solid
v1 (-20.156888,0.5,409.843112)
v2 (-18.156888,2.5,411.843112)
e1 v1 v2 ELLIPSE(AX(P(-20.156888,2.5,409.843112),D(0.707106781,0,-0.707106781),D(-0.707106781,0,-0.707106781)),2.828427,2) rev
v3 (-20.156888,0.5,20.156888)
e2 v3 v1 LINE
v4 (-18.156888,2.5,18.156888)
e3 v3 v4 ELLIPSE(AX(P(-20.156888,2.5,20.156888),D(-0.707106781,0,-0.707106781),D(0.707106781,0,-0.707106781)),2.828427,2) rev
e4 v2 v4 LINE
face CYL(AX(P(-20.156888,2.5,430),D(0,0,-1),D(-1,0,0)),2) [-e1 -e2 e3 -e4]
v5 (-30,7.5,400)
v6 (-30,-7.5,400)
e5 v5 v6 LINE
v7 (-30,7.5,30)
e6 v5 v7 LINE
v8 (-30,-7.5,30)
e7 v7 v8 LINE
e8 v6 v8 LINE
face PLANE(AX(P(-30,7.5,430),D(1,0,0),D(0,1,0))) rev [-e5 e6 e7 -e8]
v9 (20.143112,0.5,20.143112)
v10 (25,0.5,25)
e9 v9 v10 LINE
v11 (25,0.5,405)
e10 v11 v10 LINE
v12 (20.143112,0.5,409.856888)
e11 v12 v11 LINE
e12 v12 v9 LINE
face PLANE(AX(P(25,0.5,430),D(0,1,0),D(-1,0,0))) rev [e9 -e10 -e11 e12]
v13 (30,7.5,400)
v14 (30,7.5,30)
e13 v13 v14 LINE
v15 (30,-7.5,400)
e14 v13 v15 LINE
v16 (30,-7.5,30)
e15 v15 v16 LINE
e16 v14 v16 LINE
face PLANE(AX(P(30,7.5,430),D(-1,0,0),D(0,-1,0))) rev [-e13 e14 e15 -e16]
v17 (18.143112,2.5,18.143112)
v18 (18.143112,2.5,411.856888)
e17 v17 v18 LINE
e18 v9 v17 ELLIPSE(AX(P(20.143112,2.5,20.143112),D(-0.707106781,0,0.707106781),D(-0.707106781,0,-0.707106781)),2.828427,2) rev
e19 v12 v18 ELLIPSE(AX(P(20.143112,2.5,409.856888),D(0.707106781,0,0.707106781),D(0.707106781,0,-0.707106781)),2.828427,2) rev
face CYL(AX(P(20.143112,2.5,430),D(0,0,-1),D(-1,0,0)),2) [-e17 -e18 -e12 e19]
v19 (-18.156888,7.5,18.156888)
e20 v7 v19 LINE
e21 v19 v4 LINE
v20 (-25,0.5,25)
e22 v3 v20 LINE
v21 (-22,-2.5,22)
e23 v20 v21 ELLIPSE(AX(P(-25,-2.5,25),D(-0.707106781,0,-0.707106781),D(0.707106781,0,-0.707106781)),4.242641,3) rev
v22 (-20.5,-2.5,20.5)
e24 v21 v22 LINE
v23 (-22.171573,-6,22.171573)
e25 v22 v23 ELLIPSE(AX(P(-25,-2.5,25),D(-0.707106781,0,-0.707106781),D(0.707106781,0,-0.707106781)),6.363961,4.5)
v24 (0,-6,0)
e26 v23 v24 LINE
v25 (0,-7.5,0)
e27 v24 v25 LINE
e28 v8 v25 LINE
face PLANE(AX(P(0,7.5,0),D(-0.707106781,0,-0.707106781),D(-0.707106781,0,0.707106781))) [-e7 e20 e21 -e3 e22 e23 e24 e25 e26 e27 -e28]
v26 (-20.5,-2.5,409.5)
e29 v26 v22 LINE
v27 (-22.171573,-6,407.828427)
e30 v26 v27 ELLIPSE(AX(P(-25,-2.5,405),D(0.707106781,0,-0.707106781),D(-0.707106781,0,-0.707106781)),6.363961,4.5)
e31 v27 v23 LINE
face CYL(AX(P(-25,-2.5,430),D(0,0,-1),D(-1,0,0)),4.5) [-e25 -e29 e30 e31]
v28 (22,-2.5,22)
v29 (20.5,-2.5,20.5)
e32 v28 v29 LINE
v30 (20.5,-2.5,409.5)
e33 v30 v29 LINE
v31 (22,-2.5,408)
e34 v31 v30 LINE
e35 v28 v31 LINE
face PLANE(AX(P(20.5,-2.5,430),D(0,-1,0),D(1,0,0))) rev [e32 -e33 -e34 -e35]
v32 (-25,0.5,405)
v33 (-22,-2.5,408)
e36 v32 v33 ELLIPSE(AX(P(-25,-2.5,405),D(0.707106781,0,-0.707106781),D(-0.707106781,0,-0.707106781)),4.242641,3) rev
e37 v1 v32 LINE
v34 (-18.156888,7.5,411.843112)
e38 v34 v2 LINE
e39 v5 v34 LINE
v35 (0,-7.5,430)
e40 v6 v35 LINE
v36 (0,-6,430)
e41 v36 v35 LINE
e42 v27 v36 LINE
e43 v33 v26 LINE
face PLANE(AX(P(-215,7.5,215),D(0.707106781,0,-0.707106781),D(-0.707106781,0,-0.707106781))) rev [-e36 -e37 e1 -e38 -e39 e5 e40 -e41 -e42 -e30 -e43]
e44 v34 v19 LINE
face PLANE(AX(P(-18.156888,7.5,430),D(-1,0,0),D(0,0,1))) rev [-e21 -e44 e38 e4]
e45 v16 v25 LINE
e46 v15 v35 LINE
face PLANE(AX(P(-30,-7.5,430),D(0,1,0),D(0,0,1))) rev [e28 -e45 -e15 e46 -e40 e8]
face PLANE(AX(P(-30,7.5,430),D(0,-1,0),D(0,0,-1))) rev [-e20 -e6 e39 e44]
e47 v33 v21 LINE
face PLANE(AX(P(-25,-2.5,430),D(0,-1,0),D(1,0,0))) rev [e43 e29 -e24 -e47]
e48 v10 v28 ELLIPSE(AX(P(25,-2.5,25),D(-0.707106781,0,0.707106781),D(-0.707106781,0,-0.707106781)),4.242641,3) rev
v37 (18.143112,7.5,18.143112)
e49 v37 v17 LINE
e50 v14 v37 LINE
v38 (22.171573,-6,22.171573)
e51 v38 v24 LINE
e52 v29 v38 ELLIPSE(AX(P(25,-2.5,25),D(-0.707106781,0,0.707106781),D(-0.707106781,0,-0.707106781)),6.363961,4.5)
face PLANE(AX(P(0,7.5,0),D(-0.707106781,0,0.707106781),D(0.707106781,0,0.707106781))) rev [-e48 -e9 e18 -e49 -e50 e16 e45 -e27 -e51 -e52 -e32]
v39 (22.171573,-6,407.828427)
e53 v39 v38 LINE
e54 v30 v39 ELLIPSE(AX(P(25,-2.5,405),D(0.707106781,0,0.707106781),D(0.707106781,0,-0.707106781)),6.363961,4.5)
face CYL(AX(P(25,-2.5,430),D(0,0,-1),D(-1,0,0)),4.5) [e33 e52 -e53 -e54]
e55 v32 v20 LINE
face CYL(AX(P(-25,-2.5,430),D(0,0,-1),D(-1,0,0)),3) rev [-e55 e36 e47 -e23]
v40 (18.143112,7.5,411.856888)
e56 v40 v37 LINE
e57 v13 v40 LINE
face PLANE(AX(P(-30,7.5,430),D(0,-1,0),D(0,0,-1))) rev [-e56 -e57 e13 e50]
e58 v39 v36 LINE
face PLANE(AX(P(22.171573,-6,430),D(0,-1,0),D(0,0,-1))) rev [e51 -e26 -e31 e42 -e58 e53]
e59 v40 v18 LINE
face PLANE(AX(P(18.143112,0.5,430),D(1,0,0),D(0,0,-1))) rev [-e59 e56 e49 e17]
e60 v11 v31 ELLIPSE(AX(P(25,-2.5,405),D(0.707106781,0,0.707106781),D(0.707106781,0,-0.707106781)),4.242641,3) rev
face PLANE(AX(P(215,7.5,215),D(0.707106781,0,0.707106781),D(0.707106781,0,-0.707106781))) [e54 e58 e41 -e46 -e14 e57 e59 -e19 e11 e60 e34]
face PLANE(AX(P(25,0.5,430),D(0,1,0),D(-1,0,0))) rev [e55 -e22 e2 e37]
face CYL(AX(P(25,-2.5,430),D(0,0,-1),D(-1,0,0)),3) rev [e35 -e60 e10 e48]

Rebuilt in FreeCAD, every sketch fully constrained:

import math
import FreeCAD as App
import Part
import Sketcher

V = App.Vector
Q = App.Units.Quantity


def edges_at(feature, points):
    """Names of the edges that pass closest to the given points."""
    edges = feature.Shape.Edges
    near = lambda p: min(range(len(edges)), key=lambda i: edges[i].distToShape(Part.Vertex(*p))[0])
    return sorted({f"Edge{near(p) + 1}" for p in points})

doc = App.newDocument("Part")
body = doc.addObject("PartDesign::Body", "Body")

sketch1 = body.newObject("Sketcher::SketchObject", "Sketch")
sketch1.AttachmentSupport = (doc.getObject("XY_Plane"), [""])
sketch1.MapMode = "FlatFace"
sketch1.addGeometry(Part.LineSegment(V(-30, 8, 0), V(-30, -8, 0)), False)
sketch1.addGeometry(Part.LineSegment(V(-30, -8, 0), V(30, -8, 0)), False)
sketch1.addGeometry(Part.LineSegment(V(30, -8, 0), V(30, 8, 0)), False)
sketch1.addGeometry(Part.LineSegment(V(30, 8, 0), V(-30, 8, 0)), False)
sketch1.addConstraint(Sketcher.Constraint("Coincident", 0, 2, 1, 1))
sketch1.addConstraint(Sketcher.Constraint("Coincident", 1, 2, 2, 1))
sketch1.addConstraint(Sketcher.Constraint("Coincident", 2, 2, 3, 1))
sketch1.addConstraint(Sketcher.Constraint("Coincident", 3, 2, 0, 1))
sketch1.addConstraint(Sketcher.Constraint("Vertical", 0))
sketch1.addConstraint(Sketcher.Constraint("Horizontal", 1))
sketch1.addConstraint(Sketcher.Constraint("Vertical", 2))
sketch1.addConstraint(Sketcher.Constraint("Horizontal", 3))
sketch1.addConstraint(Sketcher.Constraint("Symmetric", 0, 2, 2, 2, -1, 1))
sketch1.addConstraint(Sketcher.Constraint("DistanceX", 1, 1, 1, 2, Q("60 mm")))
sketch1.addConstraint(Sketcher.Constraint("DistanceY", 0, 2, 0, 1, Q("15 mm")))
pad1 = body.newObject("PartDesign::Pad", "Pad")
pad1.Profile = sketch1
pad1.Length = 430

sketch2 = body.newObject("Sketcher::SketchObject", "Sketch001")
sketch2.AttachmentSupport = (doc.getObject("XY_Plane"), [""])
sketch2.MapMode = "FlatFace"
sketch2.addGeometry(Part.Circle(V(25, -2.5, 0), V(0, 0, 1), 3), False)
sketch2.addGeometry(Part.Circle(V(-25, -2.5, 0), V(0, 0, 1), 3), False)
sketch2.addConstraint(Sketcher.Constraint("Equal", 0, 1))
sketch2.addConstraint(Sketcher.Constraint("Symmetric", 0, 3, 1, 3, -2))
sketch2.addConstraint(Sketcher.Constraint("Diameter", 0, Q("6 mm")))
sketch2.addConstraint(Sketcher.Constraint("DistanceX", -1, 1, 0, 3, Q("25 mm")))
sketch2.addConstraint(Sketcher.Constraint("DistanceY", 0, 3, -1, 1, Q("2.5 mm")))
pocket1 = body.newObject("PartDesign::Pocket", "Pocket")
pocket1.Profile = sketch2
pocket1.Type = "ThroughAll"
pocket1.Reversed = True

sketch3 = body.newObject("Sketcher::SketchObject", "Sketch002")
sketch3.AttachmentSupport = (doc.getObject("XY_Plane"), [""])
sketch3.MapMode = "FlatFace"
sketch3.addGeometry(Part.LineSegment(V(22.2, -6, 0), V(-22.2, -6, 0)), False)
sketch3.addGeometry(Part.ArcOfCircle(Part.Circle(V(-25, -2.5, 0), V(0, 0, 1), 4.5), math.radians(-51), math.radians(0)), False)
sketch3.addGeometry(Part.LineSegment(V(-20.5, -2.5, 0), V(-25, -2.5, 0)), False)
sketch3.addGeometry(Part.LineSegment(V(-25, -2.5, 0), V(-25, 0.5, 0)), False)
sketch3.addGeometry(Part.LineSegment(V(-25, 0.5, 0), V(25, 0.5, 0)), False)
sketch3.addGeometry(Part.LineSegment(V(25, 0.5, 0), V(25, -2.5, 0)), False)
sketch3.addGeometry(Part.LineSegment(V(25, -2.5, 0), V(20.5, -2.5, 0)), False)
sketch3.addGeometry(Part.ArcOfCircle(Part.Circle(V(25, -2.5, 0), V(0, 0, 1), 4.5), math.radians(180), math.radians(231)), False)
sketch3.addConstraint(Sketcher.Constraint("Coincident", 0, 2, 1, 1))
sketch3.addConstraint(Sketcher.Constraint("Coincident", 1, 2, 2, 1))
sketch3.addConstraint(Sketcher.Constraint("Coincident", 2, 2, 3, 1))
sketch3.addConstraint(Sketcher.Constraint("Coincident", 3, 2, 4, 1))
sketch3.addConstraint(Sketcher.Constraint("Coincident", 4, 2, 5, 1))
sketch3.addConstraint(Sketcher.Constraint("Coincident", 5, 2, 6, 1))
sketch3.addConstraint(Sketcher.Constraint("Coincident", 6, 2, 7, 1))
sketch3.addConstraint(Sketcher.Constraint("Coincident", 7, 2, 0, 1))
sketch3.addConstraint(Sketcher.Constraint("Horizontal", 0))
sketch3.addConstraint(Sketcher.Constraint("Horizontal", 2))
sketch3.addConstraint(Sketcher.Constraint("Vertical", 3))
sketch3.addConstraint(Sketcher.Constraint("Horizontal", 4))
sketch3.addConstraint(Sketcher.Constraint("Vertical", 5))
sketch3.addConstraint(Sketcher.Constraint("Horizontal", 6))
sketch3.addConstraint(Sketcher.Constraint("Coincident", 2, 2, 1, 3))
sketch3.addConstraint(Sketcher.Constraint("Coincident", 5, 2, 7, 3))
sketch3.addConstraint(Sketcher.Constraint("Equal", 1, 7))
sketch3.addConstraint(Sketcher.Constraint("Symmetric", 1, 3, 7, 3, -2))
sketch3.addConstraint(Sketcher.Constraint("Radius", 1, Q("4.5 mm")))
sketch3.addConstraint(Sketcher.Constraint("DistanceX", 4, 1, 4, 2, Q("50 mm")))
sketch3.addConstraint(Sketcher.Constraint("DistanceY", 3, 1, 3, 2, Q("3 mm")))
sketch3.addConstraint(Sketcher.Constraint("DistanceY", 0, 2, -1, 1, Q("6 mm")))
sketch3.addConstraint(Sketcher.Constraint("DistanceY", 1, 3, -1, 1, Q("2.5 mm")))
pocket2 = body.newObject("PartDesign::Pocket", "Pocket001")
pocket2.Profile = sketch3
pocket2.Type = "ThroughAll"
pocket2.Reversed = True

sketch4 = body.newObject("Sketcher::SketchObject", "Sketch003")
sketch4.AttachmentSupport = (doc.getObject("XY_Plane"), [""])
sketch4.MapMode = "FlatFace"
sketch4.addGeometry(Part.LineSegment(V(18, 8, 0), V(18, 0, 0)), False)
sketch4.addGeometry(Part.LineSegment(V(18, 0, 0), V(-18, 0, 0)), False)
sketch4.addGeometry(Part.LineSegment(V(-18, 0, 0), V(-18, 8, 0)), False)
sketch4.addGeometry(Part.LineSegment(V(-18, 8, 0), V(18, 8, 0)), False)
sketch4.addConstraint(Sketcher.Constraint("Coincident", 0, 2, 1, 1))
sketch4.addConstraint(Sketcher.Constraint("Coincident", 1, 2, 2, 1))
sketch4.addConstraint(Sketcher.Constraint("Coincident", 2, 2, 3, 1))
sketch4.addConstraint(Sketcher.Constraint("Coincident", 3, 2, 0, 1))
sketch4.addConstraint(Sketcher.Constraint("Vertical", 0))
sketch4.addConstraint(Sketcher.Constraint("Horizontal", 1))
sketch4.addConstraint(Sketcher.Constraint("Vertical", 2))
sketch4.addConstraint(Sketcher.Constraint("Horizontal", 3))
sketch4.addConstraint(Sketcher.Constraint("DistanceY", 0, 2, 0, 1, Q("7 mm")))
sketch4.addConstraint(Sketcher.Constraint("DistanceX", 1, 2, 1, 1, Q("36.3 mm")))
sketch4.addConstraint(Sketcher.Constraint("DistanceY", -1, 1, 0, 2, Q("0.5 mm")))
sketch4.addConstraint(Sketcher.Constraint("DistanceX", -1, 1, 0, 2, Q("18.143112 mm")))
pocket3 = body.newObject("PartDesign::Pocket", "Pocket002")
pocket3.Profile = sketch4
pocket3.Type = "ThroughAll"
pocket3.Reversed = True
doc.recompute()

fillet = body.newObject("PartDesign::Fillet", "Fillet")
fillet.Base = (pocket3, edges_at(pocket3, [(-18.157, 0.5, 215), (18.143, 0.5, 215)]))
fillet.Radius = 2

sketch5 = body.newObject("Sketcher::SketchObject", "Sketch004")
sketch5.AttachmentSupport = (doc.getObject("XZ_Plane"), [""])
sketch5.MapMode = "FlatFace"
sketch5.AttachmentOffset = App.Placement(V(0, 0, 7.5), App.Rotation())
sketch5.addGeometry(Part.LineSegment(V(30, 430, 0), V(0, 430, 0)), False)
sketch5.addGeometry(Part.LineSegment(V(0, 430, 0), V(30, 400, 0)), False)
sketch5.addGeometry(Part.LineSegment(V(30, 400, 0), V(30, 430, 0)), False)
sketch5.addGeometry(Part.LineSegment(V(0, 430, 0), V(-30, 430, 0)), False)
sketch5.addGeometry(Part.LineSegment(V(-30, 430, 0), V(-30, 400, 0)), False)
sketch5.addGeometry(Part.LineSegment(V(-30, 400, 0), V(0, 430, 0)), False)
sketch5.addGeometry(Part.LineSegment(V(0, 0, 0), V(-30, 30, 0)), False)
sketch5.addGeometry(Part.LineSegment(V(-30, 30, 0), V(-30, 0, 0)), False)
sketch5.addGeometry(Part.LineSegment(V(-30, 0, 0), V(0, 0, 0)), False)
sketch5.addGeometry(Part.LineSegment(V(30, 30, 0), V(0, 0, 0)), False)
sketch5.addGeometry(Part.LineSegment(V(0, 0, 0), V(30, 0, 0)), False)
sketch5.addGeometry(Part.LineSegment(V(30, 0, 0), V(30, 30, 0)), False)
sketch5.addConstraint(Sketcher.Constraint("Coincident", 0, 2, 1, 1))
sketch5.addConstraint(Sketcher.Constraint("Coincident", 1, 2, 2, 1))
sketch5.addConstraint(Sketcher.Constraint("Coincident", 2, 2, 0, 1))
sketch5.addConstraint(Sketcher.Constraint("Coincident", 3, 2, 4, 1))
sketch5.addConstraint(Sketcher.Constraint("Coincident", 4, 2, 5, 1))
sketch5.addConstraint(Sketcher.Constraint("Coincident", 5, 2, 3, 1))
sketch5.addConstraint(Sketcher.Constraint("Coincident", 6, 2, 7, 1))
sketch5.addConstraint(Sketcher.Constraint("Coincident", 7, 2, 8, 1))
sketch5.addConstraint(Sketcher.Constraint("Coincident", 8, 2, 6, 1))
sketch5.addConstraint(Sketcher.Constraint("Coincident", 9, 2, 10, 1))
sketch5.addConstraint(Sketcher.Constraint("Coincident", 10, 2, 11, 1))
sketch5.addConstraint(Sketcher.Constraint("Coincident", 11, 2, 9, 1))
sketch5.addConstraint(Sketcher.Constraint("Horizontal", 0))
sketch5.addConstraint(Sketcher.Constraint("Vertical", 2))
sketch5.addConstraint(Sketcher.Constraint("Horizontal", 3))
sketch5.addConstraint(Sketcher.Constraint("Vertical", 4))
sketch5.addConstraint(Sketcher.Constraint("Vertical", 7))
sketch5.addConstraint(Sketcher.Constraint("Horizontal", 8))
sketch5.addConstraint(Sketcher.Constraint("Horizontal", 10))
sketch5.addConstraint(Sketcher.Constraint("Vertical", 11))
sketch5.addConstraint(Sketcher.Constraint("Coincident", 8, 2, -1, 1))
sketch5.addConstraint(Sketcher.Constraint("Coincident", 9, 2, -1, 1))
sketch5.addConstraint(Sketcher.Constraint("Coincident", 5, 2, 0, 2))
sketch5.addConstraint(Sketcher.Constraint("Symmetric", 1, 2, 4, 2, -2))
sketch5.addConstraint(Sketcher.Constraint("Symmetric", 6, 2, 11, 2, -2))
sketch5.addConstraint(Sketcher.Constraint("PointOnObject", 0, 2, -2))
sketch5.addConstraint(Sketcher.Constraint("Perpendicular", 1, 5))
sketch5.addConstraint(Sketcher.Constraint("Perpendicular", 5, 6))
sketch5.addConstraint(Sketcher.Constraint("Vertical", 4, 2, 6, 2))
sketch5.addConstraint(Sketcher.Constraint("DistanceX", 0, 2, 0, 1, Q("30 mm")))
sketch5.addConstraint(Sketcher.Constraint("DistanceY", -1, 1, 0, 2, Q("430 mm")))
pocket4 = body.newObject("PartDesign::Pocket", "Pocket003")
pocket4.Profile = sketch5
pocket4.Type = "ThroughAll"

doc.recompute()
